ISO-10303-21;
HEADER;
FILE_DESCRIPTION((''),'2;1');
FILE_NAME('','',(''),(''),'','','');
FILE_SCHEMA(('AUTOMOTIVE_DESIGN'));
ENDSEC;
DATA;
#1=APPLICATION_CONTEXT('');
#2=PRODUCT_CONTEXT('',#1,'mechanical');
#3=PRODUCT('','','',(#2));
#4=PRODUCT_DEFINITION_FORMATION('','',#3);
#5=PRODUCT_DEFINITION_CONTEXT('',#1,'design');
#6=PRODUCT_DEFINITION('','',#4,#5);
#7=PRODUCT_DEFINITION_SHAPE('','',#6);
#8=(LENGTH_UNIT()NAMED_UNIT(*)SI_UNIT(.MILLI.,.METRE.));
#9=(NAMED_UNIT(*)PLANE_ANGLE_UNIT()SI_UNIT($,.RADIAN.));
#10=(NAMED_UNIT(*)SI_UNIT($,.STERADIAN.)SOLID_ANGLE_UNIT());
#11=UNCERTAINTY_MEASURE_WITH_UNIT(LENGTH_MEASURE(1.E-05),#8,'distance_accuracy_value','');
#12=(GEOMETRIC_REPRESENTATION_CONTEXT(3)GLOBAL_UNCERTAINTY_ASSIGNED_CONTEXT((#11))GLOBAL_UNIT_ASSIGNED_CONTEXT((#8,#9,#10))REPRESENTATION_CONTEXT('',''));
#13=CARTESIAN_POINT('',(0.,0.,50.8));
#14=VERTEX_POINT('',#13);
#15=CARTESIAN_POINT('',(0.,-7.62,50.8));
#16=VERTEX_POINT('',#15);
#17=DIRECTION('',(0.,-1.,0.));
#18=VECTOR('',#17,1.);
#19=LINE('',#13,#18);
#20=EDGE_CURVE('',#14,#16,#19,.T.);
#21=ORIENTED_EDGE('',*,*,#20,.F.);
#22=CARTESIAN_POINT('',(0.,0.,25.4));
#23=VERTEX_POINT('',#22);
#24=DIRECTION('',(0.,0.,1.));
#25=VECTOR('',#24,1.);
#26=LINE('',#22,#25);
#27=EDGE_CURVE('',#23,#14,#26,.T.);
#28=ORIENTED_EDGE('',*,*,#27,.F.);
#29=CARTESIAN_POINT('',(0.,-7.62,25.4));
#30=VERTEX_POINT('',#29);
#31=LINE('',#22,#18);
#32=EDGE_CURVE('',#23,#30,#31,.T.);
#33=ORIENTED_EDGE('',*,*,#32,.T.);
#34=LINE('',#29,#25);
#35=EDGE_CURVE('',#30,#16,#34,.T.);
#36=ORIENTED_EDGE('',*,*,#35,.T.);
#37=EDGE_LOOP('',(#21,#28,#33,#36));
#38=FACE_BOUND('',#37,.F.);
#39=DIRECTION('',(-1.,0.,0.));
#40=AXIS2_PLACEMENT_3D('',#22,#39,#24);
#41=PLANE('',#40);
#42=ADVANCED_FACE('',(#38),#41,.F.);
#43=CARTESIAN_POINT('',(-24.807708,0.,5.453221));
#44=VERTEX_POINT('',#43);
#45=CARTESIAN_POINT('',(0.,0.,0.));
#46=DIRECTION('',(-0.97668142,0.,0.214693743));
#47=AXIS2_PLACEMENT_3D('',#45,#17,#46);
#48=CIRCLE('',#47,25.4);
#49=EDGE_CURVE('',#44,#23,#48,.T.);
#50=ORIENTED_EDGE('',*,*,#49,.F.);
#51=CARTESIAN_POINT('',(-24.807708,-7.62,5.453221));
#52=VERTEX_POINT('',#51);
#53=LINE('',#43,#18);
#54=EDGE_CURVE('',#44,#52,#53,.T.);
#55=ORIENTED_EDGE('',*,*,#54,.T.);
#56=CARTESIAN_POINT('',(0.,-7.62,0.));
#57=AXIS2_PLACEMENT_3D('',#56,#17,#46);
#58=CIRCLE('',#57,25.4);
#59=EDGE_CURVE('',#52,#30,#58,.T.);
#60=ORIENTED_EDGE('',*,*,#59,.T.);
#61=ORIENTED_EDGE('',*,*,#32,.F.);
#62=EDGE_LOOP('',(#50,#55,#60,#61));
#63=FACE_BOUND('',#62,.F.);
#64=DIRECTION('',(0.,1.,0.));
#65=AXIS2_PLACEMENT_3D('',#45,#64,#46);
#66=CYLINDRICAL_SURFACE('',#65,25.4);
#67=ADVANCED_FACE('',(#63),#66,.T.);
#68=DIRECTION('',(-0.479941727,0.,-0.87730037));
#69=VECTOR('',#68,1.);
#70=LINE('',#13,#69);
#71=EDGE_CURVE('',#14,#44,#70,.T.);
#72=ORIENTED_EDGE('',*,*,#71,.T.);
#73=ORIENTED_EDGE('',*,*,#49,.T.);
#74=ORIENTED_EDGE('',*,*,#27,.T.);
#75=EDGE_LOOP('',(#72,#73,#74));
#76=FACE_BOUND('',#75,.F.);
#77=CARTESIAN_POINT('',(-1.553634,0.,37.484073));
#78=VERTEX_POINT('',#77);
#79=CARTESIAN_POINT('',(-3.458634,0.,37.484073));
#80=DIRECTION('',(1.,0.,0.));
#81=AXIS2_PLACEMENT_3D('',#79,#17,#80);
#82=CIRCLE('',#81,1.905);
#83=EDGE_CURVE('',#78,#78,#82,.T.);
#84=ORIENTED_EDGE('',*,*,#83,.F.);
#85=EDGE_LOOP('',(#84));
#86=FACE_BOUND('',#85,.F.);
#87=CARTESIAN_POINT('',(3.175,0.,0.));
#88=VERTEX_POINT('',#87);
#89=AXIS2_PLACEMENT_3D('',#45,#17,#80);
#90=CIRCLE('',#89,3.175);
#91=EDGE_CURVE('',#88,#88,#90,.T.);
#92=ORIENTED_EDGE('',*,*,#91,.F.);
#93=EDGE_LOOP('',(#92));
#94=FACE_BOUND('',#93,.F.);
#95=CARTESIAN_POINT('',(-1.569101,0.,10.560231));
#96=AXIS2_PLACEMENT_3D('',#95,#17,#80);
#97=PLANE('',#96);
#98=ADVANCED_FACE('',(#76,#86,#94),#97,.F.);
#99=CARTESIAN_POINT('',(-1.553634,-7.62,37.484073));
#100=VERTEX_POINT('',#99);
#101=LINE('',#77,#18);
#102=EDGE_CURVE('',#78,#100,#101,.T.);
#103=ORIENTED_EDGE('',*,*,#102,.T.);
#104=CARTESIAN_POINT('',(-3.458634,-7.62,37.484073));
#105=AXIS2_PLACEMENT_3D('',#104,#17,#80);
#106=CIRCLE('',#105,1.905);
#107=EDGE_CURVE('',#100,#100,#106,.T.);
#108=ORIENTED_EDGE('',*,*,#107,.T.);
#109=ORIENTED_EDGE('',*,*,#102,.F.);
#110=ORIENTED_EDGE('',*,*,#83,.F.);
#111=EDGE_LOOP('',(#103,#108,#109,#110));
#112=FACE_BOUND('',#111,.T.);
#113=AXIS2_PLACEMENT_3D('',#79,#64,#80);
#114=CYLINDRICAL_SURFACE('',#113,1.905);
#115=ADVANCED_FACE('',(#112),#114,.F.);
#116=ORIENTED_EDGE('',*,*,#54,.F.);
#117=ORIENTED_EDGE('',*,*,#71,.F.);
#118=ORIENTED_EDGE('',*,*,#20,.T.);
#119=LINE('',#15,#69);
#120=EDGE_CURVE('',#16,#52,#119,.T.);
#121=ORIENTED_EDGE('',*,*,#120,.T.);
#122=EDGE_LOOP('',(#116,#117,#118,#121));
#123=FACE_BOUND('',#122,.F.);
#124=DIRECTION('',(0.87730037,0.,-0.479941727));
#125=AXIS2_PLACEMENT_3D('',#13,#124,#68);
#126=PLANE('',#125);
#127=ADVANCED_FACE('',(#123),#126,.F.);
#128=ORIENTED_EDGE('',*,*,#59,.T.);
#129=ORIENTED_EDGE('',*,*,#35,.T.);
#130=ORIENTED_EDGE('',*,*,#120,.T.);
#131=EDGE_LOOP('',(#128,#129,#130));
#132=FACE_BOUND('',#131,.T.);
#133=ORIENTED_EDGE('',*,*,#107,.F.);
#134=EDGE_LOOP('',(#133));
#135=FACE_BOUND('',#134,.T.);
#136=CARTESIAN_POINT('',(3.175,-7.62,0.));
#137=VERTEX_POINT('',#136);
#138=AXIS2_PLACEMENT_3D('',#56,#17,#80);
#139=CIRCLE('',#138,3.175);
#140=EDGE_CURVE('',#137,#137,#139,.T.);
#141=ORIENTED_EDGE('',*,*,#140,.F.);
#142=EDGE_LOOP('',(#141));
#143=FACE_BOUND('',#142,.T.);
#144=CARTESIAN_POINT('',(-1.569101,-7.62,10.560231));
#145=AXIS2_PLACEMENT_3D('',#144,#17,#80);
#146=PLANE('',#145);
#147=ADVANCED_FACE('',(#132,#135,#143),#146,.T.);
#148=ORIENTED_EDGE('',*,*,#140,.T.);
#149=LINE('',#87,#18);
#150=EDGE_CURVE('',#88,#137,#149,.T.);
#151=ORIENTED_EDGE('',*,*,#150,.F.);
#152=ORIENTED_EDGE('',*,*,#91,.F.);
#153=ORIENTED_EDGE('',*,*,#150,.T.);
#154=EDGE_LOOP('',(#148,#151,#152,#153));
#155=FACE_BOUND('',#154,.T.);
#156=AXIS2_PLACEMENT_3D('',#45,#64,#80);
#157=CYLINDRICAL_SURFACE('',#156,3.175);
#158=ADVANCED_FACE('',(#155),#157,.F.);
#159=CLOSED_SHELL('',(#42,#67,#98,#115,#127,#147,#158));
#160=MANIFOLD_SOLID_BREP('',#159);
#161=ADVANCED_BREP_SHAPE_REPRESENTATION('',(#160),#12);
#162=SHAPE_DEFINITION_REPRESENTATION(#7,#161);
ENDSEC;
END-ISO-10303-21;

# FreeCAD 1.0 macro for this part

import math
import FreeCAD as App
import Part
import Sketcher
Q = App.Units.Quantity

doc = App.newDocument("Part")
body = doc.addObject("PartDesign::Body", "Body")

# Sketch on XZ plane
sketch1 = body.newObject("Sketcher::SketchObject", "Sketch")
sketch1.AttachmentSupport = (doc.getObject("XZ_Plane"), [""])
sketch1.MapMode = "FlatFace"
sketch1.addGeometry(Part.LineSegment(App.Vector(0, 50.8, 0), App.Vector(-24.8, 5.5, 0)), False)
sketch1.addGeometry(Part.ArcOfCircle(Part.Circle(App.Vector(0, 0, 0), App.Vector(0, 0, 1), 25.4), math.radians(168), math.radians(450)), False)
sketch1.addGeometry(Part.LineSegment(App.Vector(0, 25.4, 0), App.Vector(0, 50.8, 0)), False)
sketch1.addGeometry(Part.Circle(App.Vector(0, 0, 0), App.Vector(0, 0, 1), 3.2), False)
sketch1.addGeometry(Part.Circle(App.Vector(-3.5, 37.5, 0), App.Vector(0, 0, 1), 1.9), False)
sketch1.addConstraint(Sketcher.Constraint("Coincident", 0, 2, 1, 1))
sketch1.addConstraint(Sketcher.Constraint("Coincident", 1, 2, 2, 1))
sketch1.addConstraint(Sketcher.Constraint("Coincident", 2, 2, 0, 1))
sketch1.addConstraint(Sketcher.Constraint("Vertical", 2))
sketch1.addConstraint(Sketcher.Constraint("Coincident", 1, 3, -1, 1))
sketch1.addConstraint(Sketcher.Constraint("Coincident", 3, 3, -1, 1))
sketch1.addConstraint(Sketcher.Constraint("PointOnObject", 1, 2, -2))
sketch1.addConstraint(Sketcher.Constraint("Radius", 1, Q("1 in")))
sketch1.addConstraint(Sketcher.Constraint("Diameter", 3, Q("0.25 in")))
sketch1.addConstraint(Sketcher.Constraint("Diameter", 4, Q("0.15 in")))
sketch1.addConstraint(Sketcher.Constraint("DistanceY", 2, 1, 2, 2, Q("1 in")))
sketch1.addConstraint(Sketcher.Constraint("Distance", 0, Q("2.035 in")))
sketch1.addConstraint(Sketcher.Constraint("DistanceX", 4, 3, -1, 1, 3.458634))
sketch1.addConstraint(Sketcher.Constraint("DistanceY", -1, 1, 4, 3, 37.484073))
pad1 = body.newObject("PartDesign::Pad", "Pad")
pad1.Profile = sketch1
pad1.Length = Q("0.3 in")

doc.recompute()
